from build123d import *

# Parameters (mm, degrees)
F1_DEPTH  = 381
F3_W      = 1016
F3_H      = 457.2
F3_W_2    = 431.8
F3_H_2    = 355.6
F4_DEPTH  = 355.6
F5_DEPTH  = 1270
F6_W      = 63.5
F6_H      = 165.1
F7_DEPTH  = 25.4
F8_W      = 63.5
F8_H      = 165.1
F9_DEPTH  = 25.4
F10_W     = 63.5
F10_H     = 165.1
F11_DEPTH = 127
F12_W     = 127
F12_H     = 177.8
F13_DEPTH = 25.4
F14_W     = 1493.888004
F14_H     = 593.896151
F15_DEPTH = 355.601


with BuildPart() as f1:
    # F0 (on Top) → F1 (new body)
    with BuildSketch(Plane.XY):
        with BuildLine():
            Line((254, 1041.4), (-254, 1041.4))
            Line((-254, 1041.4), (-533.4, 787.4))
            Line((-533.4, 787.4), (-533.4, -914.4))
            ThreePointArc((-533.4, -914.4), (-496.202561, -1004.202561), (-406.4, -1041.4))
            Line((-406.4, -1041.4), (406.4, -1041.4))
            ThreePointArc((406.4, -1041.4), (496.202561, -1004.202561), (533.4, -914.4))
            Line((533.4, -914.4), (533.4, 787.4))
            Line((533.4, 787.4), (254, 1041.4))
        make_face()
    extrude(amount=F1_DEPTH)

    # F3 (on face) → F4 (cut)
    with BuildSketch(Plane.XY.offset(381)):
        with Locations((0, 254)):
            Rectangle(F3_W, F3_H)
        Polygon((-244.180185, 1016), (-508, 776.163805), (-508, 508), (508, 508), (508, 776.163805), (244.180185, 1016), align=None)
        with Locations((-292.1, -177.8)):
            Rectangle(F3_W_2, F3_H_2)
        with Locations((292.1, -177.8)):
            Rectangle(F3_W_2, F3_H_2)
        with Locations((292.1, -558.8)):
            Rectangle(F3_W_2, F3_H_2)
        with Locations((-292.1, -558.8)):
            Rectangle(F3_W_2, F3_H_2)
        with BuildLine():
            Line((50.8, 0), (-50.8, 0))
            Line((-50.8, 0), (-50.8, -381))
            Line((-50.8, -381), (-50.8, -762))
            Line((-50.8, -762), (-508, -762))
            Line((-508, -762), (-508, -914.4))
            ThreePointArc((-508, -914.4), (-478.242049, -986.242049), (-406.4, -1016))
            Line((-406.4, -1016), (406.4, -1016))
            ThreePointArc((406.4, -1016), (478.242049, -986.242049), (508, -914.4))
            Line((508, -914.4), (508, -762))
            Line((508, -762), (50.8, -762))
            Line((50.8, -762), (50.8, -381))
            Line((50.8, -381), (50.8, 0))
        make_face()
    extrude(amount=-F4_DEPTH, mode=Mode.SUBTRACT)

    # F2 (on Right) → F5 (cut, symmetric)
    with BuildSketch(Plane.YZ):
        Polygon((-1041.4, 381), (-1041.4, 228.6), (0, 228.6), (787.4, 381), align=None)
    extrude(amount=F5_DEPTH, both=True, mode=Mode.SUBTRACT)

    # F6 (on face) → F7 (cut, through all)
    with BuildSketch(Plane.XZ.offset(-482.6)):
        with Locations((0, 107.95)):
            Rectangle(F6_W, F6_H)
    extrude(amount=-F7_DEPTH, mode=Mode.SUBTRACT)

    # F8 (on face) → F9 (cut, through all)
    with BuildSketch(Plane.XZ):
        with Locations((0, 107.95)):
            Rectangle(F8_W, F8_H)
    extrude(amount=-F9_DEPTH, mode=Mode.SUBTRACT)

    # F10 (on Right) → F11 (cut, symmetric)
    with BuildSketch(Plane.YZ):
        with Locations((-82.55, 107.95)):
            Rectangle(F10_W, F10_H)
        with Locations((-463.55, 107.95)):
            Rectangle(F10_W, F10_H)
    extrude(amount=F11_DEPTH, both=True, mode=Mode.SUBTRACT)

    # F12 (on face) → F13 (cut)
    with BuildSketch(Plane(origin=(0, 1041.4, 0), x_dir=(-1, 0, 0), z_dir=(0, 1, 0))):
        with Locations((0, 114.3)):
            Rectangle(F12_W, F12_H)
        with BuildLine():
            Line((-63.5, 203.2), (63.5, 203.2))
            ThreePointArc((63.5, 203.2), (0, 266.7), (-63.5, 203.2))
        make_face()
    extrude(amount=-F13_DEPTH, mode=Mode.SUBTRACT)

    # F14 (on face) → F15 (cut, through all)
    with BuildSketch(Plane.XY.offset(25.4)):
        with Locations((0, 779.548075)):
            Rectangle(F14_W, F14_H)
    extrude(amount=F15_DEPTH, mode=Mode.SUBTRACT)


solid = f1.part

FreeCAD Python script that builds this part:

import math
import FreeCAD as App
import Part
import Sketcher
from FreeCAD import Vector
Q = App.Units.Quantity

doc = App.newDocument("Part")
params = doc.addObject("Spreadsheet::Sheet", "Params")
for row, (alias, value) in enumerate([
    ("sketch1_radius", "5 in"),
    ("sketch1_width", "20 in"),
    ("sketch1_width2", "32 in"),
    ("sketch1_height", "67 in"),
    ("pad1_length", "15 in"),
    ("sketch2_radius", "4 in"),
    ("sketch2_width", "40 in"),
    ("sketch2_width2", "17 in"),
    ("sketch2_width3", "4 in"),
    ("sketch2_height", "14 in"),
    ("pocket1_length", "14 in"),
    ("sketch3_width", "41 in"),
    ("sketch3_width2", "72 in"),
    ("sketch3_height", "6 in"),
    ("pocket2_length", "100 in"),
    ("sketch4_width", "2.5 in"),
    ("sketch4_height", "6.5 in"),
    ("pocket3_length", "1 in"),
    ("sketch5_width", "2.5 in"),
    ("sketch5_height", "6.5 in"),
    ("pocket4_length", "1 in"),
    ("sketch6_width", "2.5 in"),
    ("sketch6_height", "6.5 in"),
    ("pocket5_length", "10 in"),
    ("sketch7_radius", "2.5 in"),
    ("sketch7_height", "7 in"),
    ("pocket6_length", "1 in"),
], start=1):
    params.set(f"A{row}", alias)
    params.set(f"B{row}", "=" + value)
    params.setAlias(f"B{row}", alias)

body = doc.addObject("PartDesign::Body", "Body")

# Sketch on XY plane
sketch1 = body.newObject("Sketcher::SketchObject", "Sketch")
sketch1.AttachmentSupport = (doc.getObject("XY_Plane"), [""])
sketch1.MapMode = "FlatFace"
sketch1.addGeometry(Part.LineSegment(Vector(254, 1041, 0), Vector(-254, 1041, 0)), False)
sketch1.addGeometry(Part.LineSegment(Vector(-254, 1041, 0), Vector(-533, 787, 0)), False)
sketch1.addGeometry(Part.LineSegment(Vector(-533, 787, 0), Vector(-533, -914, 0)), False)
sketch1.addGeometry(Part.ArcOfCircle(Part.Circle(Vector(-406, -914, 0), Vector(0, 0, 1), 127), math.radians(-180), math.radians(-90)), False)
sketch1.addGeometry(Part.LineSegment(Vector(-406, -1041, 0), Vector(406, -1041, 0)), False)
sketch1.addGeometry(Part.ArcOfCircle(Part.Circle(Vector(406, -914, 0), Vector(0, 0, 1), 127), math.radians(-90), math.radians(0)), False)
sketch1.addGeometry(Part.LineSegment(Vector(533, -914, 0), Vector(533, 787, 0)), False)
sketch1.addGeometry(Part.LineSegment(Vector(533, 787, 0), Vector(254, 1041, 0)), False)
sketch1.addConstraint(Sketcher.Constraint("Coincident", 0, 2, 1, 1))
sketch1.addConstraint(Sketcher.Constraint("Coincident", 1, 2, 2, 1))
sketch1.addConstraint(Sketcher.Constraint("Tangent", 2, 2, 3, 1))
sketch1.addConstraint(Sketcher.Constraint("Tangent", 3, 2, 4, 1))
sketch1.addConstraint(Sketcher.Constraint("Tangent", 4, 2, 5, 1))
sketch1.addConstraint(Sketcher.Constraint("Tangent", 5, 2, 6, 1))
sketch1.addConstraint(Sketcher.Constraint("Coincident", 6, 2, 7, 1))
sketch1.addConstraint(Sketcher.Constraint("Coincident", 7, 2, 0, 1))
sketch1.addConstraint(Sketcher.Constraint("Horizontal", 0))
sketch1.addConstraint(Sketcher.Constraint("Vertical", 2))
sketch1.addConstraint(Sketcher.Constraint("Horizontal", 4))
sketch1.addConstraint(Sketcher.Constraint("Vertical", 6))
sketch1.addConstraint(Sketcher.Constraint("Equal", 3, 5))
sketch1.addConstraint(Sketcher.Constraint("Symmetric", 1, 2, 6, 2, -2))
sketch1.addConstraint(Sketcher.Constraint("Equal", 1, 7))
sketch1.addConstraint(Sketcher.Constraint("Radius", 3, Q("5 in")))
sketch1.addConstraint(Sketcher.Constraint("DistanceX", 0, 2, 0, 1, Q("20 in")))
sketch1.addConstraint(Sketcher.Constraint("DistanceX", 4, 1, 4, 2, Q("32 in")))
sketch1.addConstraint(Sketcher.Constraint("DistanceY", 2, 2, 2, 1, Q("67 in")))
sketch1.addConstraint(Sketcher.Constraint("DistanceY", 3, 3, -1, 1, Q("36 in")))
sketch1.addConstraint(Sketcher.Constraint("DistanceY", -1, 1, 0, 2, Q("41 in")))
sketch1.setExpression("Constraints[15]", "Params.sketch1_radius")
sketch1.setExpression("Constraints[16]", "Params.sketch1_width")
sketch1.setExpression("Constraints[17]", "Params.sketch1_width2")
sketch1.setExpression("Constraints[18]", "Params.sketch1_height")
pad1 = body.newObject("PartDesign::Pad", "Pad")
pad1.Profile = sketch1
pad1.setExpression("Length", "Params.pad1_length")

# Sketch on XY plane
sketch2 = body.newObject("Sketcher::SketchObject", "Sketch001")
sketch2.AttachmentSupport = (doc.getObject("XY_Plane"), [""])
sketch2.MapMode = "FlatFace"
sketch2.AttachmentOffset = App.Placement(Vector(0, 0, 15 * 25.4), App.Rotation())
sketch2.addGeometry(Part.LineSegment(Vector(-508, 483, 0), Vector(-508, 25, 0)), False)
sketch2.addGeometry(Part.LineSegment(Vector(-508, 25, 0), Vector(508, 25, 0)), False)
sketch2.addGeometry(Part.LineSegment(Vector(508, 25, 0), Vector(508, 483, 0)), False)
sketch2.addGeometry(Part.LineSegment(Vector(508, 483, 0), Vector(-508, 483, 0)), False)
sketch2.addGeometry(Part.LineSegment(Vector(-244, 1016, 0), Vector(-508, 776, 0)), False)
sketch2.addGeometry(Part.LineSegment(Vector(-508, 776, 0), Vector(-508, 508, 0)), False)
sketch2.addGeometry(Part.LineSegment(Vector(-508, 508, 0), Vector(508, 508, 0)), False)
sketch2.addGeometry(Part.LineSegment(Vector(508, 508, 0), Vector(508, 776, 0)), False)
sketch2.addGeometry(Part.LineSegment(Vector(508, 776, 0), Vector(244, 1016, 0)), False)
sketch2.addGeometry(Part.LineSegment(Vector(244, 1016, 0), Vector(-244, 1016, 0)), False)
sketch2.addGeometry(Part.LineSegment(Vector(-508, 0, 0), Vector(-508, -356, 0)), False)
sketch2.addGeometry(Part.LineSegment(Vector(-508, -356, 0), Vector(-76, -356, 0)), False)
sketch2.addGeometry(Part.LineSegment(Vector(-76, -356, 0), Vector(-76, 0, 0)), False)
sketch2.addGeometry(Part.LineSegment(Vector(-76, 0, 0), Vector(-508, 0, 0)), False)
sketch2.addGeometry(Part.LineSegment(Vector(76, 0, 0), Vector(76, -356, 0)), False)
sketch2.addGeometry(Part.LineSegment(Vector(76, -356, 0), Vector(508, -356, 0)), False)
sketch2.addGeometry(Part.LineSegment(Vector(508, -356, 0), Vector(508, 0, 0)), False)
sketch2.addGeometry(Part.LineSegment(Vector(508, 0, 0), Vector(76, 0, 0)), False)
sketch2.addGeometry(Part.LineSegment(Vector(76, -381, 0), Vector(76, -737, 0)), False)
sketch2.addGeometry(Part.LineSegment(Vector(76, -737, 0), Vector(508, -737, 0)), False)
sketch2.addGeometry(Part.LineSegment(Vector(508, -737, 0), Vector(508, -381, 0)), False)
sketch2.addGeometry(Part.LineSegment(Vector(508, -381, 0), Vector(76, -381, 0)), False)
sketch2.addGeometry(Part.LineSegment(Vector(-508, -381, 0), Vector(-508, -737, 0)), False)
sketch2.addGeometry(Part.LineSegment(Vector(-508, -737, 0), Vector(-76, -737, 0)), False)
sketch2.addGeometry(Part.LineSegment(Vector(-76, -737, 0), Vector(-76, -381, 0)), False)
sketch2.addGeometry(Part.LineSegment(Vector(-76, -381, 0), Vector(-508, -381, 0)), False)
sketch2.addGeometry(Part.LineSegment(Vector(51, 0, 0), Vector(-51, 0, 0)), False)
sketch2.addGeometry(Part.LineSegment(Vector(-51, 0, 0), Vector(-51, -762, 0)), False)
sketch2.addGeometry(Part.LineSegment(Vector(-51, -762, 0), Vector(-508, -762, 0)), False)
sketch2.addGeometry(Part.LineSegment(Vector(-508, -762, 0), Vector(-508, -914, 0)), False)
sketch2.addGeometry(Part.ArcOfCircle(Part.Circle(Vector(-406, -914, 0), Vector(0, 0, 1), 102), math.radians(180), math.radians(270)), False)
sketch2.addGeometry(Part.LineSegment(Vector(-406, -1016, 0), Vector(406, -1016, 0)), False)
sketch2.addGeometry(Part.ArcOfCircle(Part.Circle(Vector(406, -914, 0), Vector(0, 0, 1), 102), math.radians(-90), math.radians(0)), False)
sketch2.addGeometry(Part.LineSegment(Vector(508, -914, 0), Vector(508, -762, 0)), False)
sketch2.addGeometry(Part.LineSegment(Vector(508, -762, 0), Vector(51, -762, 0)), False)
sketch2.addGeometry(Part.LineSegment(Vector(51, -762, 0), Vector(51, 0, 0)), False)
sketch2.addConstraint(Sketcher.Constraint("Coincident", 0, 2, 1, 1))
sketch2.addConstraint(Sketcher.Constraint("Coincident", 1, 2, 2, 1))
sketch2.addConstraint(Sketcher.Constraint("Coincident", 2, 2, 3, 1))
sketch2.addConstraint(Sketcher.Constraint("Coincident", 3, 2, 0, 1))
sketch2.addConstraint(Sketcher.Constraint("Coincident", 4, 2, 5, 1))
sketch2.addConstraint(Sketcher.Constraint("Coincident", 5, 2, 6, 1))
sketch2.addConstraint(Sketcher.Constraint("Coincident", 6, 2, 7, 1))
sketch2.addConstraint(Sketcher.Constraint("Coincident", 7, 2, 8, 1))
sketch2.addConstraint(Sketcher.Constraint("Coincident", 8, 2, 9, 1))
sketch2.addConstraint(Sketcher.Constraint("Coincident", 9, 2, 4, 1))
sketch2.addConstraint(Sketcher.Constraint("Coincident", 10, 2, 11, 1))
sketch2.addConstraint(Sketcher.Constraint("Coincident", 11, 2, 12, 1))
sketch2.addConstraint(Sketcher.Constraint("Coincident", 12, 2, 13, 1))
sketch2.addConstraint(Sketcher.Constraint("Coincident", 13, 2, 10, 1))
sketch2.addConstraint(Sketcher.Constraint("Coincident", 14, 2, 15, 1))
sketch2.addConstraint(Sketcher.Constraint("Coincident", 15, 2, 16, 1))
sketch2.addConstraint(Sketcher.Constraint("Coincident", 16, 2, 17, 1))
sketch2.addConstraint(Sketcher.Constraint("Coincident", 17, 2, 14, 1))
sketch2.addConstraint(Sketcher.Constraint("Coincident", 18, 2, 19, 1))
sketch2.addConstraint(Sketcher.Constraint("Coincident", 19, 2, 20, 1))
sketch2.addConstraint(Sketcher.Constraint("Coincident", 20, 2, 21, 1))
sketch2.addConstraint(Sketcher.Constraint("Coincident", 21, 2, 18, 1))
sketch2.addConstraint(Sketcher.Constraint("Coincident", 22, 2, 23, 1))
sketch2.addConstraint(Sketcher.Constraint("Coincident", 23, 2, 24, 1))
sketch2.addConstraint(Sketcher.Constraint("Coincident", 24, 2, 25, 1))
sketch2.addConstraint(Sketcher.Constraint("Coincident", 25, 2, 22, 1))
sketch2.addConstraint(Sketcher.Constraint("Coincident", 26, 2, 27, 1))
sketch2.addConstraint(Sketcher.Constraint("Coincident", 27, 2, 28, 1))
sketch2.addConstraint(Sketcher.Constraint("Coincident", 28, 2, 29, 1))
sketch2.addConstraint(Sketcher.Constraint("Tangent", 29, 2, 30, 1))
sketch2.addConstraint(Sketcher.Constraint("Tangent", 30, 2, 31, 1))
sketch2.addConstraint(Sketcher.Constraint("Tangent", 31, 2, 32, 1))
sketch2.addConstraint(Sketcher.Constraint("Tangent", 32, 2, 33, 1))
sketch2.addConstraint(Sketcher.Constraint("Coincident", 33, 2, 34, 1))
sketch2.addConstraint(Sketcher.Constraint("Coincident", 34, 2, 35, 1))
sketch2.addConstraint(Sketcher.Constraint("Coincident", 35, 2, 26, 1))
sketch2.addConstraint(Sketcher.Constraint("Vertical", 0))
sketch2.addConstraint(Sketcher.Constraint("Horizontal", 1))
sketch2.addConstraint(Sketcher.Constraint("Vertical", 2))
sketch2.addConstraint(Sketcher.Constraint("Horizontal", 3))
sketch2.addConstraint(Sketcher.Constraint("Vertical", 5))
sketch2.addConstraint(Sketcher.Constraint("Horizontal", 6))
sketch2.addConstraint(Sketcher.Constraint("Vertical", 7))
sketch2.addConstraint(Sketcher.Constraint("Horizontal", 9))
sketch2.addConstraint(Sketcher.Constraint("Vertical", 10))
sketch2.addConstraint(Sketcher.Constraint("Horizontal", 11))
sketch2.addConstraint(Sketcher.Constraint("Vertical", 12))
sketch2.addConstraint(Sketcher.Constraint("Horizontal", 13))
sketch2.addConstraint(Sketcher.Constraint("Vertical", 14))
sketch2.addConstraint(Sketcher.Constraint("Horizontal", 15))
sketch2.addConstraint(Sketcher.Constraint("Vertical", 16))
sketch2.addConstraint(Sketcher.Constraint("Horizontal", 17))
sketch2.addConstraint(Sketcher.Constraint("Vertical", 18))
sketch2.addConstraint(Sketcher.Constraint("Horizontal", 19))
sketch2.addConstraint(Sketcher.Constraint("Vertical", 20))
sketch2.addConstraint(Sketcher.Constraint("Horizontal", 21))
sketch2.addConstraint(Sketcher.Constraint("Vertical", 22))
sketch2.addConstraint(Sketcher.Constraint("Horizontal", 23))
sketch2.addConstraint(Sketcher.Constraint("Vertical", 24))
sketch2.addConstraint(Sketcher.Constraint("Horizontal", 25))
sketch2.addConstraint(Sketcher.Constraint("Horizontal", 26))
sketch2.addConstraint(Sketcher.Constraint("Vertical", 27))
sketch2.addConstraint(Sketcher.Constraint("Horizontal", 28))
sketch2.addConstraint(Sketcher.Constraint("Vertical", 29))
sketch2.addConstraint(Sketcher.Constraint("Horizontal", 31))
sketch2.addConstraint(Sketcher.Constraint("Vertical", 33))
sketch2.addConstraint(Sketcher.Constraint("Horizontal", 34))
sketch2.addConstraint(Sketcher.Constraint("Vertical", 35))
sketch2.addConstraint(Sketcher.Constraint("Equal", 30, 32))
sketch2.addConstraint(Sketcher.Constraint("Symmetric", 13, 2, 16, 2, -1, 1))
sketch2.addConstraint(Sketcher.Constraint("Symmetric", 26, 2, 35, 2, -1, 1))
sketch2.addConstraint(Sketcher.Constraint("Symmetric", 4, 2, 7, 2, -2))
sketch2.addConstraint(Sketcher.Constraint("Symmetric", 11, 2, 14, 2, -2))
sketch2.addConstraint(Sketcher.Constraint("Symmetric", 19, 2, 22, 2, -2))
sketch2.addConstraint(Sketcher.Constraint("Symmetric", 21, 2, 24, 2, -2))
sketch2.addConstraint(Sketcher.Constraint("Symmetric", 28, 2, 33, 2, -2))
sketch2.addConstraint(Sketcher.Constraint("PointOnObject", 12, 2, -1))
sketch2.addConstraint(Sketcher.Constraint("Vertical", 3, 2, 4, 2))
sketch2.addConstraint(Sketcher.Constraint("Vertical", 2, 2, 6, 2))
sketch2.addConstraint(Sketcher.Constraint("Vertical", 5, 2, 10, 2))
sketch2.addConstraint(Sketcher.Constraint("Vertical", 17, 2, 18, 2))
sketch2.addConstraint(Sketcher.Constraint("Vertical", 16, 2, 19, 2))
sketch2.addConstraint(Sketcher.Constraint("Vertical", 25, 2, 28, 2))
sketch2.addConstraint(Sketcher.Constraint("Equal", 34, 0))
sketch2.addConstraint(Sketcher.Constraint("Equal", 16, 18))
sketch2.addConstraint(Sketcher.Constraint("Equal", 4, 8))
sketch2.addConstraint(Sketcher.Constraint("Radius", 30, Q("4 in")))
sketch2.addConstraint(Sketcher.Constraint("DistanceX", 1, 1, 1, 2, Q("40 in")))
sketch2.addConstraint(Sketcher.Constraint("DistanceX", 11, 1, 11, 2, Q("17 in")))
sketch2.addConstraint(Sketcher.Constraint("DistanceX", 26, 2, 26, 1, Q("4 in")))
sketch2.addConstraint(Sketcher.Constraint("DistanceY", 10, 2, 10, 1, Q("14 in")))
sketch2.addConstraint(Sketcher.Constraint("DistanceY", 27, 2, 27, 1, Q("30 in")))
sketch2.addConstraint(Sketcher.Constraint("DistanceY", 29, 2, 29, 1, Q("6 in")))
sketch2.addConstraint(Sketcher.Constraint("DistanceY", -1, 1, 0, 2, Q("1 in")))
sketch2.addConstraint(Sketcher.Constraint("DistanceY", -1, 1, 5, 2, Q("20 in")))
sketch2.addConstraint(Sketcher.Constraint("DistanceY", -1, 1, 8, 2, Q("40 in")))
sketch2.addConstraint(Sketcher.Constraint("DistanceY", 18, 2, -1, 1, Q("29 in")))
sketch2.addConstraint(Sketcher.Constraint("DistanceX", 9, 2, 9, 1, 488.36037))
sketch2.addConstraint(Sketcher.Constraint("DistanceY", 5, 2, 5, 1, 268.163805))
sketch2.setExpression("Constraints[86]", "Params.sketch2_radius")
sketch2.setExpression("Constraints[87]", "Params.sketch2_width")
sketch2.setExpression("Constraints[88]", "Params.sketch2_width2")
sketch2.setExpression("Constraints[89]", "Params.sketch2_width3")
sketch2.setExpression("Constraints[90]", "Params.sketch2_height")
pocket1 = body.newObject("PartDesign::Pocket", "Pocket")
pocket1.Profile = sketch2
pocket1.setExpression("Length", "Params.pocket1_length")

# Sketch on YZ plane
sketch3 = body.newObject("Sketcher::SketchObject", "Sketch002")
sketch3.AttachmentSupport = (doc.getObject("YZ_Plane"), [""])
sketch3.MapMode = "FlatFace"
sketch3.addGeometry(Part.LineSegment(Vector(-1041, 381, 0), Vector(-1041, 229, 0)), False)
sketch3.addGeometry(Part.LineSegment(Vector(-1041, 229, 0), Vector(0, 229, 0)), False)
sketch3.addGeometry(Part.LineSegment(Vector(0, 229, 0), Vector(787, 381, 0)), False)
sketch3.addGeometry(Part.LineSegment(Vector(787, 381, 0), Vector(-1041, 381, 0)), False)
sketch3.addConstraint(Sketcher.Constraint("Coincident", 0, 2, 1, 1))
sketch3.addConstraint(Sketcher.Constraint("Coincident", 1, 2, 2, 1))
sketch3.addConstraint(Sketcher.Constraint("Coincident", 2, 2, 3, 1))
sketch3.addConstraint(Sketcher.Constraint("Coincident", 3, 2, 0, 1))
sketch3.addConstraint(Sketcher.Constraint("Vertical", 0))
sketch3.addConstraint(Sketcher.Constraint("Horizontal", 1))
sketch3.addConstraint(Sketcher.Constraint("Horizontal", 3))
sketch3.addConstraint(Sketcher.Constraint("PointOnObject", 1, 2, -2))
sketch3.addConstraint(Sketcher.Constraint("DistanceX", 1, 1, 1, 2, Q("41 in")))
sketch3.addConstraint(Sketcher.Constraint("DistanceX", 3, 2, 3, 1, Q("72 in")))
sketch3.addConstraint(Sketcher.Constraint("DistanceY", 0, 2, 0, 1, Q("6 in")))
sketch3.addConstraint(Sketcher.Constraint("DistanceY", -1, 1, 0, 2, Q("9 in")))
sketch3.setExpression("Constraints[8]", "Params.sketch3_width")
sketch3.setExpression("Constraints[9]", "Params.sketch3_width2")
sketch3.setExpression("Constraints[10]", "Params.sketch3_height")
pocket2 = body.newObject("PartDesign::Pocket", "Pocket001")
pocket2.Profile = sketch3
pocket2.setExpression("Length", "Params.pocket2_length")
pocket2.Midplane = True

# Sketch on XZ plane
sketch4 = body.newObject("Sketcher::SketchObject", "Sketch003")
sketch4.AttachmentSupport = (doc.getObject("XZ_Plane"), [""])
sketch4.MapMode = "FlatFace"
sketch4.AttachmentOffset = App.Placement(Vector(0, 0, -19 * 25.4), App.Rotation())
sketch4.addGeometry(Part.LineSegment(Vector(-32, 190, 0), Vector(-32, 25, 0)), False)
sketch4.addGeometry(Part.LineSegment(Vector(-32, 25, 0), Vector(32, 25, 0)), False)
sketch4.addGeometry(Part.LineSegment(Vector(32, 25, 0), Vector(32, 190, 0)), False)
sketch4.addGeometry(Part.LineSegment(Vector(32, 190, 0), Vector(-32, 190, 0)), False)
sketch4.addConstraint(Sketcher.Constraint("Coincident", 0, 2, 1, 1))
sketch4.addConstraint(Sketcher.Constraint("Coincident", 1, 2, 2, 1))
sketch4.addConstraint(Sketcher.Constraint("Coincident", 2, 2, 3, 1))
sketch4.addConstraint(Sketcher.Constraint("Coincident", 3, 2, 0, 1))
sketch4.addConstraint(Sketcher.Constraint("Vertical", 0))
sketch4.addConstraint(Sketcher.Constraint("Horizontal", 1))
sketch4.addConstraint(Sketcher.Constraint("Vertical", 2))
sketch4.addConstraint(Sketcher.Constraint("Horizontal", 3))
sketch4.addConstraint(Sketcher.Constraint("DistanceX", 1, 1, 1, 2, Q("2.5 in")))
sketch4.addConstraint(Sketcher.Constraint("DistanceY", 0, 2, 0, 1, Q("6.5 in")))
sketch4.addConstraint(Sketcher.Constraint("DistanceY", -1, 1, 0, 2, Q("1 in")))
sketch4.addConstraint(Sketcher.Constraint("DistanceX", 0, 2, -1, 1, Q("1.25 in")))
sketch4.setExpression("Constraints[8]", "Params.sketch4_width")
sketch4.setExpression("Constraints[9]", "Params.sketch4_height")
pocket3 = body.newObject("PartDesign::Pocket", "Pocket002")
pocket3.Profile = sketch4
pocket3.setExpression("Length", "Params.pocket3_length")

# Sketch on XZ plane
sketch5 = body.newObject("Sketcher::SketchObject", "Sketch004")
sketch5.AttachmentSupport = (doc.getObject("XZ_Plane"), [""])
sketch5.MapMode = "FlatFace"
sketch5.addGeometry(Part.LineSegment(Vector(-32, 190, 0), Vector(-32, 25, 0)), False)
sketch5.addGeometry(Part.LineSegment(Vector(-32, 25, 0), Vector(32, 25, 0)), False)
sketch5.addGeometry(Part.LineSegment(Vector(32, 25, 0), Vector(32, 190, 0)), False)
sketch5.addGeometry(Part.LineSegment(Vector(32, 190, 0), Vector(-32, 190, 0)), False)
sketch5.addConstraint(Sketcher.Constraint("Coincident", 0, 2, 1, 1))
sketch5.addConstraint(Sketcher.Constraint("Coincident", 1, 2, 2, 1))
sketch5.addConstraint(Sketcher.Constraint("Coincident", 2, 2, 3, 1))
sketch5.addConstraint(Sketcher.Constraint("Coincident", 3, 2, 0, 1))
sketch5.addConstraint(Sketcher.Constraint("Vertical", 0))
sketch5.addConstraint(Sketcher.Constraint("Horizontal", 1))
sketch5.addConstraint(Sketcher.Constraint("Vertical", 2))
sketch5.addConstraint(Sketcher.Constraint("Horizontal", 3))
sketch5.addConstraint(Sketcher.Constraint("DistanceX", 1, 1, 1, 2, Q("2.5 in")))
sketch5.addConstraint(Sketcher.Constraint("DistanceY", 0, 2, 0, 1, Q("6.5 in")))
sketch5.addConstraint(Sketcher.Constraint("DistanceY", -1, 1, 0, 2, Q("1 in")))
sketch5.addConstraint(Sketcher.Constraint("DistanceX", 0, 2, -1, 1, Q("1.25 in")))
sketch5.setExpression("Constraints[8]", "Params.sketch5_width")
sketch5.setExpression("Constraints[9]", "Params.sketch5_height")
pocket4 = body.newObject("PartDesign::Pocket", "Pocket003")
pocket4.Profile = sketch5
pocket4.setExpression("Length", "Params.pocket4_length")

# Sketch on YZ plane
sketch6 = body.newObject("Sketcher::SketchObject", "Sketch005")
sketch6.AttachmentSupport = (doc.getObject("YZ_Plane"), [""])
sketch6.MapMode = "FlatFace"
sketch6.addGeometry(Part.LineSegment(Vector(-114, 190, 0), Vector(-114, 25, 0)), False)
sketch6.addGeometry(Part.LineSegment(Vector(-114, 25, 0), Vector(-51, 25, 0)), False)
sketch6.addGeometry(Part.LineSegment(Vector(-51, 25, 0), Vector(-51, 190, 0)), False)
sketch6.addGeometry(Part.LineSegment(Vector(-51, 190, 0), Vector(-114, 190, 0)), False)
sketch6.addGeometry(Part.LineSegment(Vector(-495, 190, 0), Vector(-495, 25, 0)), False)
sketch6.addGeometry(Part.LineSegment(Vector(-495, 25, 0), Vector(-432, 25, 0)), False)
sketch6.addGeometry(Part.LineSegment(Vector(-432, 25, 0), Vector(-432, 190, 0)), False)
sketch6.addGeometry(Part.LineSegment(Vector(-432, 190, 0), Vector(-495, 190, 0)), False)
sketch6.addConstraint(Sketcher.Constraint("Coincident", 0, 2, 1, 1))
sketch6.addConstraint(Sketcher.Constraint("Coincident", 1, 2, 2, 1))
sketch6.addConstraint(Sketcher.Constraint("Coincident", 2, 2, 3, 1))
sketch6.addConstraint(Sketcher.Constraint("Coincident", 3, 2, 0, 1))
sketch6.addConstraint(Sketcher.Constraint("Coincident", 4, 2, 5, 1))
sketch6.addConstraint(Sketcher.Constraint("Coincident", 5, 2, 6, 1))
sketch6.addConstraint(Sketcher.Constraint("Coincident", 6, 2, 7, 1))
sketch6.addConstraint(Sketcher.Constraint("Coincident", 7, 2, 4, 1))
sketch6.addConstraint(Sketcher.Constraint("Vertical", 0))
sketch6.addConstraint(Sketcher.Constraint("Horizontal", 1))
sketch6.addConstraint(Sketcher.Constraint("Vertical", 2))
sketch6.addConstraint(Sketcher.Constraint("Horizontal", 3))
sketch6.addConstraint(Sketcher.Constraint("Vertical", 4))
sketch6.addConstraint(Sketcher.Constraint("Horizontal", 5))
sketch6.addConstraint(Sketcher.Constraint("Vertical", 6))
sketch6.addConstraint(Sketcher.Constraint("Horizontal", 7))
sketch6.addConstraint(Sketcher.Constraint("Horizontal", 1, 2, 4, 2))
sketch6.addConstraint(Sketcher.Constraint("Horizontal", 3, 2, 6, 2))
sketch6.addConstraint(Sketcher.Constraint("Equal", 3, 5))
sketch6.addConstraint(Sketcher.Constraint("DistanceX", 1, 1, 1, 2, Q("2.5 in")))
sketch6.addConstraint(Sketcher.Constraint("DistanceY", 0, 2, 0, 1, Q("6.5 in")))
sketch6.addConstraint(Sketcher.Constraint("DistanceY", -1, 1, 0, 2, Q("1 in")))
sketch6.addConstraint(Sketcher.Constraint("DistanceX", 1, 2, -1, 1, Q("2 in")))
sketch6.addConstraint(Sketcher.Constraint("DistanceX", 5, 2, -1, 1, Q("17 in")))
sketch6.setExpression("Constraints[19]", "Params.sketch6_width")
sketch6.setExpression("Constraints[20]", "Params.sketch6_height")
pocket5 = body.newObject("PartDesign::Pocket", "Pocket004")
pocket5.Profile = sketch6
pocket5.setExpression("Length", "Params.pocket5_length")
pocket5.Midplane = True

# Sketch on XZ plane
sketch7 = body.newObject("Sketcher::SketchObject", "Sketch006")
sketch7.AttachmentSupport = (doc.getObject("XZ_Plane"), [""])
sketch7.MapMode = "FlatFace"
sketch7.AttachmentOffset = App.Placement(Vector(0, 0, -41 * 25.4), App.Rotation())
sketch7.addGeometry(Part.LineSegment(Vector(64, 203, 0), Vector(64, 25, 0)), False)
sketch7.addGeometry(Part.LineSegment(Vector(64, 25, 0), Vector(-64, 25, 0)), False)
sketch7.addGeometry(Part.LineSegment(Vector(-64, 25, 0), Vector(-64, 203, 0)), False)
sketch7.addGeometry(Part.ArcOfCircle(Part.Circle(Vector(0, 203, 0), Vector(0, 0, 1), 64), math.radians(0), math.radians(180)), False)
sketch7.addConstraint(Sketcher.Constraint("Coincident", 0, 2, 1, 1))
sketch7.addConstraint(Sketcher.Constraint("Coincident", 1, 2, 2, 1))
sketch7.addConstraint(Sketcher.Constraint("Tangent", 2, 2, 3, 2))
sketch7.addConstraint(Sketcher.Constraint("Tangent", 3, 1, 0, 1))
sketch7.addConstraint(Sketcher.Constraint("Vertical", 0))
sketch7.addConstraint(Sketcher.Constraint("Horizontal", 1))
sketch7.addConstraint(Sketcher.Constraint("Vertical", 2))
sketch7.addConstraint(Sketcher.Constraint("PointOnObject", 3, 3, -2))
sketch7.addConstraint(Sketcher.Constraint("Radius", 3, Q("2.5 in")))
sketch7.addConstraint(Sketcher.Constraint("DistanceY", 0, 2, 0, 1, Q("7 in")))
sketch7.addConstraint(Sketcher.Constraint("DistanceY", -1, 1, 3, 3, Q("8 in")))
sketch7.setExpression("Constraints[8]", "Params.sketch7_radius")
sketch7.setExpression("Constraints[9]", "Params.sketch7_height")
pocket6 = body.newObject("PartDesign::Pocket", "Pocket005")
pocket6.Profile = sketch7
pocket6.setExpression("Length", "Params.pocket6_length")
pocket6.Reversed = True

# Sketch on XY plane
sketch8 = body.newObject("Sketcher::SketchObject", "Sketch007")
sketch8.AttachmentSupport = (doc.getObject("XY_Plane"), [""])
sketch8.MapMode = "FlatFace"
sketch8.AttachmentOffset = App.Placement(Vector(0, 0, 1 * 25.4), App.Rotation())
sketch8.addGeometry(Part.LineSegment(Vector(-747, 1076, 0), Vector(-747, 483, 0)), False)
sketch8.addGeometry(Part.LineSegment(Vector(-747, 483, 0), Vector(747, 483, 0)), False)
sketch8.addGeometry(Part.LineSegment(Vector(747, 483, 0), Vector(747, 1076, 0)), False)
sketch8.addGeometry(Part.LineSegment(Vector(747, 1076, 0), Vector(-747, 1076, 0)), False)
sketch8.addConstraint(Sketcher.Constraint("Coincident", 0, 2, 1, 1))
sketch8.addConstraint(Sketcher.Constraint("Coincident", 1, 2, 2, 1))
sketch8.addConstraint(Sketcher.Constraint("Coincident", 2, 2, 3, 1))
sketch8.addConstraint(Sketcher.Constraint("Coincident", 3, 2, 0, 1))
sketch8.addConstraint(Sketcher.Constraint("Vertical", 0))
sketch8.addConstraint(Sketcher.Constraint("Horizontal", 1))
sketch8.addConstraint(Sketcher.Constraint("Vertical", 2))
sketch8.addConstraint(Sketcher.Constraint("Horizontal", 3))
sketch8.addConstraint(Sketcher.Constraint("DistanceY", -1, 1, 0, 2, Q("19 in")))
sketch8.addConstraint(Sketcher.Constraint("DistanceY", 0, 2, 0, 1, 593.896151))
sketch8.addConstraint(Sketcher.Constraint("DistanceX", 0, 2, -1, 1, 746.944002))
sketch8.addConstraint(Sketcher.Constraint("DistanceX", -1, 1, 1, 2, 746.944002))
pocket7 = body.newObject("PartDesign::Pocket", "Pocket006")
pocket7.Profile = sketch8
pocket7.Type = "ThroughAll"
pocket7.Reversed = True

doc.recompute()
